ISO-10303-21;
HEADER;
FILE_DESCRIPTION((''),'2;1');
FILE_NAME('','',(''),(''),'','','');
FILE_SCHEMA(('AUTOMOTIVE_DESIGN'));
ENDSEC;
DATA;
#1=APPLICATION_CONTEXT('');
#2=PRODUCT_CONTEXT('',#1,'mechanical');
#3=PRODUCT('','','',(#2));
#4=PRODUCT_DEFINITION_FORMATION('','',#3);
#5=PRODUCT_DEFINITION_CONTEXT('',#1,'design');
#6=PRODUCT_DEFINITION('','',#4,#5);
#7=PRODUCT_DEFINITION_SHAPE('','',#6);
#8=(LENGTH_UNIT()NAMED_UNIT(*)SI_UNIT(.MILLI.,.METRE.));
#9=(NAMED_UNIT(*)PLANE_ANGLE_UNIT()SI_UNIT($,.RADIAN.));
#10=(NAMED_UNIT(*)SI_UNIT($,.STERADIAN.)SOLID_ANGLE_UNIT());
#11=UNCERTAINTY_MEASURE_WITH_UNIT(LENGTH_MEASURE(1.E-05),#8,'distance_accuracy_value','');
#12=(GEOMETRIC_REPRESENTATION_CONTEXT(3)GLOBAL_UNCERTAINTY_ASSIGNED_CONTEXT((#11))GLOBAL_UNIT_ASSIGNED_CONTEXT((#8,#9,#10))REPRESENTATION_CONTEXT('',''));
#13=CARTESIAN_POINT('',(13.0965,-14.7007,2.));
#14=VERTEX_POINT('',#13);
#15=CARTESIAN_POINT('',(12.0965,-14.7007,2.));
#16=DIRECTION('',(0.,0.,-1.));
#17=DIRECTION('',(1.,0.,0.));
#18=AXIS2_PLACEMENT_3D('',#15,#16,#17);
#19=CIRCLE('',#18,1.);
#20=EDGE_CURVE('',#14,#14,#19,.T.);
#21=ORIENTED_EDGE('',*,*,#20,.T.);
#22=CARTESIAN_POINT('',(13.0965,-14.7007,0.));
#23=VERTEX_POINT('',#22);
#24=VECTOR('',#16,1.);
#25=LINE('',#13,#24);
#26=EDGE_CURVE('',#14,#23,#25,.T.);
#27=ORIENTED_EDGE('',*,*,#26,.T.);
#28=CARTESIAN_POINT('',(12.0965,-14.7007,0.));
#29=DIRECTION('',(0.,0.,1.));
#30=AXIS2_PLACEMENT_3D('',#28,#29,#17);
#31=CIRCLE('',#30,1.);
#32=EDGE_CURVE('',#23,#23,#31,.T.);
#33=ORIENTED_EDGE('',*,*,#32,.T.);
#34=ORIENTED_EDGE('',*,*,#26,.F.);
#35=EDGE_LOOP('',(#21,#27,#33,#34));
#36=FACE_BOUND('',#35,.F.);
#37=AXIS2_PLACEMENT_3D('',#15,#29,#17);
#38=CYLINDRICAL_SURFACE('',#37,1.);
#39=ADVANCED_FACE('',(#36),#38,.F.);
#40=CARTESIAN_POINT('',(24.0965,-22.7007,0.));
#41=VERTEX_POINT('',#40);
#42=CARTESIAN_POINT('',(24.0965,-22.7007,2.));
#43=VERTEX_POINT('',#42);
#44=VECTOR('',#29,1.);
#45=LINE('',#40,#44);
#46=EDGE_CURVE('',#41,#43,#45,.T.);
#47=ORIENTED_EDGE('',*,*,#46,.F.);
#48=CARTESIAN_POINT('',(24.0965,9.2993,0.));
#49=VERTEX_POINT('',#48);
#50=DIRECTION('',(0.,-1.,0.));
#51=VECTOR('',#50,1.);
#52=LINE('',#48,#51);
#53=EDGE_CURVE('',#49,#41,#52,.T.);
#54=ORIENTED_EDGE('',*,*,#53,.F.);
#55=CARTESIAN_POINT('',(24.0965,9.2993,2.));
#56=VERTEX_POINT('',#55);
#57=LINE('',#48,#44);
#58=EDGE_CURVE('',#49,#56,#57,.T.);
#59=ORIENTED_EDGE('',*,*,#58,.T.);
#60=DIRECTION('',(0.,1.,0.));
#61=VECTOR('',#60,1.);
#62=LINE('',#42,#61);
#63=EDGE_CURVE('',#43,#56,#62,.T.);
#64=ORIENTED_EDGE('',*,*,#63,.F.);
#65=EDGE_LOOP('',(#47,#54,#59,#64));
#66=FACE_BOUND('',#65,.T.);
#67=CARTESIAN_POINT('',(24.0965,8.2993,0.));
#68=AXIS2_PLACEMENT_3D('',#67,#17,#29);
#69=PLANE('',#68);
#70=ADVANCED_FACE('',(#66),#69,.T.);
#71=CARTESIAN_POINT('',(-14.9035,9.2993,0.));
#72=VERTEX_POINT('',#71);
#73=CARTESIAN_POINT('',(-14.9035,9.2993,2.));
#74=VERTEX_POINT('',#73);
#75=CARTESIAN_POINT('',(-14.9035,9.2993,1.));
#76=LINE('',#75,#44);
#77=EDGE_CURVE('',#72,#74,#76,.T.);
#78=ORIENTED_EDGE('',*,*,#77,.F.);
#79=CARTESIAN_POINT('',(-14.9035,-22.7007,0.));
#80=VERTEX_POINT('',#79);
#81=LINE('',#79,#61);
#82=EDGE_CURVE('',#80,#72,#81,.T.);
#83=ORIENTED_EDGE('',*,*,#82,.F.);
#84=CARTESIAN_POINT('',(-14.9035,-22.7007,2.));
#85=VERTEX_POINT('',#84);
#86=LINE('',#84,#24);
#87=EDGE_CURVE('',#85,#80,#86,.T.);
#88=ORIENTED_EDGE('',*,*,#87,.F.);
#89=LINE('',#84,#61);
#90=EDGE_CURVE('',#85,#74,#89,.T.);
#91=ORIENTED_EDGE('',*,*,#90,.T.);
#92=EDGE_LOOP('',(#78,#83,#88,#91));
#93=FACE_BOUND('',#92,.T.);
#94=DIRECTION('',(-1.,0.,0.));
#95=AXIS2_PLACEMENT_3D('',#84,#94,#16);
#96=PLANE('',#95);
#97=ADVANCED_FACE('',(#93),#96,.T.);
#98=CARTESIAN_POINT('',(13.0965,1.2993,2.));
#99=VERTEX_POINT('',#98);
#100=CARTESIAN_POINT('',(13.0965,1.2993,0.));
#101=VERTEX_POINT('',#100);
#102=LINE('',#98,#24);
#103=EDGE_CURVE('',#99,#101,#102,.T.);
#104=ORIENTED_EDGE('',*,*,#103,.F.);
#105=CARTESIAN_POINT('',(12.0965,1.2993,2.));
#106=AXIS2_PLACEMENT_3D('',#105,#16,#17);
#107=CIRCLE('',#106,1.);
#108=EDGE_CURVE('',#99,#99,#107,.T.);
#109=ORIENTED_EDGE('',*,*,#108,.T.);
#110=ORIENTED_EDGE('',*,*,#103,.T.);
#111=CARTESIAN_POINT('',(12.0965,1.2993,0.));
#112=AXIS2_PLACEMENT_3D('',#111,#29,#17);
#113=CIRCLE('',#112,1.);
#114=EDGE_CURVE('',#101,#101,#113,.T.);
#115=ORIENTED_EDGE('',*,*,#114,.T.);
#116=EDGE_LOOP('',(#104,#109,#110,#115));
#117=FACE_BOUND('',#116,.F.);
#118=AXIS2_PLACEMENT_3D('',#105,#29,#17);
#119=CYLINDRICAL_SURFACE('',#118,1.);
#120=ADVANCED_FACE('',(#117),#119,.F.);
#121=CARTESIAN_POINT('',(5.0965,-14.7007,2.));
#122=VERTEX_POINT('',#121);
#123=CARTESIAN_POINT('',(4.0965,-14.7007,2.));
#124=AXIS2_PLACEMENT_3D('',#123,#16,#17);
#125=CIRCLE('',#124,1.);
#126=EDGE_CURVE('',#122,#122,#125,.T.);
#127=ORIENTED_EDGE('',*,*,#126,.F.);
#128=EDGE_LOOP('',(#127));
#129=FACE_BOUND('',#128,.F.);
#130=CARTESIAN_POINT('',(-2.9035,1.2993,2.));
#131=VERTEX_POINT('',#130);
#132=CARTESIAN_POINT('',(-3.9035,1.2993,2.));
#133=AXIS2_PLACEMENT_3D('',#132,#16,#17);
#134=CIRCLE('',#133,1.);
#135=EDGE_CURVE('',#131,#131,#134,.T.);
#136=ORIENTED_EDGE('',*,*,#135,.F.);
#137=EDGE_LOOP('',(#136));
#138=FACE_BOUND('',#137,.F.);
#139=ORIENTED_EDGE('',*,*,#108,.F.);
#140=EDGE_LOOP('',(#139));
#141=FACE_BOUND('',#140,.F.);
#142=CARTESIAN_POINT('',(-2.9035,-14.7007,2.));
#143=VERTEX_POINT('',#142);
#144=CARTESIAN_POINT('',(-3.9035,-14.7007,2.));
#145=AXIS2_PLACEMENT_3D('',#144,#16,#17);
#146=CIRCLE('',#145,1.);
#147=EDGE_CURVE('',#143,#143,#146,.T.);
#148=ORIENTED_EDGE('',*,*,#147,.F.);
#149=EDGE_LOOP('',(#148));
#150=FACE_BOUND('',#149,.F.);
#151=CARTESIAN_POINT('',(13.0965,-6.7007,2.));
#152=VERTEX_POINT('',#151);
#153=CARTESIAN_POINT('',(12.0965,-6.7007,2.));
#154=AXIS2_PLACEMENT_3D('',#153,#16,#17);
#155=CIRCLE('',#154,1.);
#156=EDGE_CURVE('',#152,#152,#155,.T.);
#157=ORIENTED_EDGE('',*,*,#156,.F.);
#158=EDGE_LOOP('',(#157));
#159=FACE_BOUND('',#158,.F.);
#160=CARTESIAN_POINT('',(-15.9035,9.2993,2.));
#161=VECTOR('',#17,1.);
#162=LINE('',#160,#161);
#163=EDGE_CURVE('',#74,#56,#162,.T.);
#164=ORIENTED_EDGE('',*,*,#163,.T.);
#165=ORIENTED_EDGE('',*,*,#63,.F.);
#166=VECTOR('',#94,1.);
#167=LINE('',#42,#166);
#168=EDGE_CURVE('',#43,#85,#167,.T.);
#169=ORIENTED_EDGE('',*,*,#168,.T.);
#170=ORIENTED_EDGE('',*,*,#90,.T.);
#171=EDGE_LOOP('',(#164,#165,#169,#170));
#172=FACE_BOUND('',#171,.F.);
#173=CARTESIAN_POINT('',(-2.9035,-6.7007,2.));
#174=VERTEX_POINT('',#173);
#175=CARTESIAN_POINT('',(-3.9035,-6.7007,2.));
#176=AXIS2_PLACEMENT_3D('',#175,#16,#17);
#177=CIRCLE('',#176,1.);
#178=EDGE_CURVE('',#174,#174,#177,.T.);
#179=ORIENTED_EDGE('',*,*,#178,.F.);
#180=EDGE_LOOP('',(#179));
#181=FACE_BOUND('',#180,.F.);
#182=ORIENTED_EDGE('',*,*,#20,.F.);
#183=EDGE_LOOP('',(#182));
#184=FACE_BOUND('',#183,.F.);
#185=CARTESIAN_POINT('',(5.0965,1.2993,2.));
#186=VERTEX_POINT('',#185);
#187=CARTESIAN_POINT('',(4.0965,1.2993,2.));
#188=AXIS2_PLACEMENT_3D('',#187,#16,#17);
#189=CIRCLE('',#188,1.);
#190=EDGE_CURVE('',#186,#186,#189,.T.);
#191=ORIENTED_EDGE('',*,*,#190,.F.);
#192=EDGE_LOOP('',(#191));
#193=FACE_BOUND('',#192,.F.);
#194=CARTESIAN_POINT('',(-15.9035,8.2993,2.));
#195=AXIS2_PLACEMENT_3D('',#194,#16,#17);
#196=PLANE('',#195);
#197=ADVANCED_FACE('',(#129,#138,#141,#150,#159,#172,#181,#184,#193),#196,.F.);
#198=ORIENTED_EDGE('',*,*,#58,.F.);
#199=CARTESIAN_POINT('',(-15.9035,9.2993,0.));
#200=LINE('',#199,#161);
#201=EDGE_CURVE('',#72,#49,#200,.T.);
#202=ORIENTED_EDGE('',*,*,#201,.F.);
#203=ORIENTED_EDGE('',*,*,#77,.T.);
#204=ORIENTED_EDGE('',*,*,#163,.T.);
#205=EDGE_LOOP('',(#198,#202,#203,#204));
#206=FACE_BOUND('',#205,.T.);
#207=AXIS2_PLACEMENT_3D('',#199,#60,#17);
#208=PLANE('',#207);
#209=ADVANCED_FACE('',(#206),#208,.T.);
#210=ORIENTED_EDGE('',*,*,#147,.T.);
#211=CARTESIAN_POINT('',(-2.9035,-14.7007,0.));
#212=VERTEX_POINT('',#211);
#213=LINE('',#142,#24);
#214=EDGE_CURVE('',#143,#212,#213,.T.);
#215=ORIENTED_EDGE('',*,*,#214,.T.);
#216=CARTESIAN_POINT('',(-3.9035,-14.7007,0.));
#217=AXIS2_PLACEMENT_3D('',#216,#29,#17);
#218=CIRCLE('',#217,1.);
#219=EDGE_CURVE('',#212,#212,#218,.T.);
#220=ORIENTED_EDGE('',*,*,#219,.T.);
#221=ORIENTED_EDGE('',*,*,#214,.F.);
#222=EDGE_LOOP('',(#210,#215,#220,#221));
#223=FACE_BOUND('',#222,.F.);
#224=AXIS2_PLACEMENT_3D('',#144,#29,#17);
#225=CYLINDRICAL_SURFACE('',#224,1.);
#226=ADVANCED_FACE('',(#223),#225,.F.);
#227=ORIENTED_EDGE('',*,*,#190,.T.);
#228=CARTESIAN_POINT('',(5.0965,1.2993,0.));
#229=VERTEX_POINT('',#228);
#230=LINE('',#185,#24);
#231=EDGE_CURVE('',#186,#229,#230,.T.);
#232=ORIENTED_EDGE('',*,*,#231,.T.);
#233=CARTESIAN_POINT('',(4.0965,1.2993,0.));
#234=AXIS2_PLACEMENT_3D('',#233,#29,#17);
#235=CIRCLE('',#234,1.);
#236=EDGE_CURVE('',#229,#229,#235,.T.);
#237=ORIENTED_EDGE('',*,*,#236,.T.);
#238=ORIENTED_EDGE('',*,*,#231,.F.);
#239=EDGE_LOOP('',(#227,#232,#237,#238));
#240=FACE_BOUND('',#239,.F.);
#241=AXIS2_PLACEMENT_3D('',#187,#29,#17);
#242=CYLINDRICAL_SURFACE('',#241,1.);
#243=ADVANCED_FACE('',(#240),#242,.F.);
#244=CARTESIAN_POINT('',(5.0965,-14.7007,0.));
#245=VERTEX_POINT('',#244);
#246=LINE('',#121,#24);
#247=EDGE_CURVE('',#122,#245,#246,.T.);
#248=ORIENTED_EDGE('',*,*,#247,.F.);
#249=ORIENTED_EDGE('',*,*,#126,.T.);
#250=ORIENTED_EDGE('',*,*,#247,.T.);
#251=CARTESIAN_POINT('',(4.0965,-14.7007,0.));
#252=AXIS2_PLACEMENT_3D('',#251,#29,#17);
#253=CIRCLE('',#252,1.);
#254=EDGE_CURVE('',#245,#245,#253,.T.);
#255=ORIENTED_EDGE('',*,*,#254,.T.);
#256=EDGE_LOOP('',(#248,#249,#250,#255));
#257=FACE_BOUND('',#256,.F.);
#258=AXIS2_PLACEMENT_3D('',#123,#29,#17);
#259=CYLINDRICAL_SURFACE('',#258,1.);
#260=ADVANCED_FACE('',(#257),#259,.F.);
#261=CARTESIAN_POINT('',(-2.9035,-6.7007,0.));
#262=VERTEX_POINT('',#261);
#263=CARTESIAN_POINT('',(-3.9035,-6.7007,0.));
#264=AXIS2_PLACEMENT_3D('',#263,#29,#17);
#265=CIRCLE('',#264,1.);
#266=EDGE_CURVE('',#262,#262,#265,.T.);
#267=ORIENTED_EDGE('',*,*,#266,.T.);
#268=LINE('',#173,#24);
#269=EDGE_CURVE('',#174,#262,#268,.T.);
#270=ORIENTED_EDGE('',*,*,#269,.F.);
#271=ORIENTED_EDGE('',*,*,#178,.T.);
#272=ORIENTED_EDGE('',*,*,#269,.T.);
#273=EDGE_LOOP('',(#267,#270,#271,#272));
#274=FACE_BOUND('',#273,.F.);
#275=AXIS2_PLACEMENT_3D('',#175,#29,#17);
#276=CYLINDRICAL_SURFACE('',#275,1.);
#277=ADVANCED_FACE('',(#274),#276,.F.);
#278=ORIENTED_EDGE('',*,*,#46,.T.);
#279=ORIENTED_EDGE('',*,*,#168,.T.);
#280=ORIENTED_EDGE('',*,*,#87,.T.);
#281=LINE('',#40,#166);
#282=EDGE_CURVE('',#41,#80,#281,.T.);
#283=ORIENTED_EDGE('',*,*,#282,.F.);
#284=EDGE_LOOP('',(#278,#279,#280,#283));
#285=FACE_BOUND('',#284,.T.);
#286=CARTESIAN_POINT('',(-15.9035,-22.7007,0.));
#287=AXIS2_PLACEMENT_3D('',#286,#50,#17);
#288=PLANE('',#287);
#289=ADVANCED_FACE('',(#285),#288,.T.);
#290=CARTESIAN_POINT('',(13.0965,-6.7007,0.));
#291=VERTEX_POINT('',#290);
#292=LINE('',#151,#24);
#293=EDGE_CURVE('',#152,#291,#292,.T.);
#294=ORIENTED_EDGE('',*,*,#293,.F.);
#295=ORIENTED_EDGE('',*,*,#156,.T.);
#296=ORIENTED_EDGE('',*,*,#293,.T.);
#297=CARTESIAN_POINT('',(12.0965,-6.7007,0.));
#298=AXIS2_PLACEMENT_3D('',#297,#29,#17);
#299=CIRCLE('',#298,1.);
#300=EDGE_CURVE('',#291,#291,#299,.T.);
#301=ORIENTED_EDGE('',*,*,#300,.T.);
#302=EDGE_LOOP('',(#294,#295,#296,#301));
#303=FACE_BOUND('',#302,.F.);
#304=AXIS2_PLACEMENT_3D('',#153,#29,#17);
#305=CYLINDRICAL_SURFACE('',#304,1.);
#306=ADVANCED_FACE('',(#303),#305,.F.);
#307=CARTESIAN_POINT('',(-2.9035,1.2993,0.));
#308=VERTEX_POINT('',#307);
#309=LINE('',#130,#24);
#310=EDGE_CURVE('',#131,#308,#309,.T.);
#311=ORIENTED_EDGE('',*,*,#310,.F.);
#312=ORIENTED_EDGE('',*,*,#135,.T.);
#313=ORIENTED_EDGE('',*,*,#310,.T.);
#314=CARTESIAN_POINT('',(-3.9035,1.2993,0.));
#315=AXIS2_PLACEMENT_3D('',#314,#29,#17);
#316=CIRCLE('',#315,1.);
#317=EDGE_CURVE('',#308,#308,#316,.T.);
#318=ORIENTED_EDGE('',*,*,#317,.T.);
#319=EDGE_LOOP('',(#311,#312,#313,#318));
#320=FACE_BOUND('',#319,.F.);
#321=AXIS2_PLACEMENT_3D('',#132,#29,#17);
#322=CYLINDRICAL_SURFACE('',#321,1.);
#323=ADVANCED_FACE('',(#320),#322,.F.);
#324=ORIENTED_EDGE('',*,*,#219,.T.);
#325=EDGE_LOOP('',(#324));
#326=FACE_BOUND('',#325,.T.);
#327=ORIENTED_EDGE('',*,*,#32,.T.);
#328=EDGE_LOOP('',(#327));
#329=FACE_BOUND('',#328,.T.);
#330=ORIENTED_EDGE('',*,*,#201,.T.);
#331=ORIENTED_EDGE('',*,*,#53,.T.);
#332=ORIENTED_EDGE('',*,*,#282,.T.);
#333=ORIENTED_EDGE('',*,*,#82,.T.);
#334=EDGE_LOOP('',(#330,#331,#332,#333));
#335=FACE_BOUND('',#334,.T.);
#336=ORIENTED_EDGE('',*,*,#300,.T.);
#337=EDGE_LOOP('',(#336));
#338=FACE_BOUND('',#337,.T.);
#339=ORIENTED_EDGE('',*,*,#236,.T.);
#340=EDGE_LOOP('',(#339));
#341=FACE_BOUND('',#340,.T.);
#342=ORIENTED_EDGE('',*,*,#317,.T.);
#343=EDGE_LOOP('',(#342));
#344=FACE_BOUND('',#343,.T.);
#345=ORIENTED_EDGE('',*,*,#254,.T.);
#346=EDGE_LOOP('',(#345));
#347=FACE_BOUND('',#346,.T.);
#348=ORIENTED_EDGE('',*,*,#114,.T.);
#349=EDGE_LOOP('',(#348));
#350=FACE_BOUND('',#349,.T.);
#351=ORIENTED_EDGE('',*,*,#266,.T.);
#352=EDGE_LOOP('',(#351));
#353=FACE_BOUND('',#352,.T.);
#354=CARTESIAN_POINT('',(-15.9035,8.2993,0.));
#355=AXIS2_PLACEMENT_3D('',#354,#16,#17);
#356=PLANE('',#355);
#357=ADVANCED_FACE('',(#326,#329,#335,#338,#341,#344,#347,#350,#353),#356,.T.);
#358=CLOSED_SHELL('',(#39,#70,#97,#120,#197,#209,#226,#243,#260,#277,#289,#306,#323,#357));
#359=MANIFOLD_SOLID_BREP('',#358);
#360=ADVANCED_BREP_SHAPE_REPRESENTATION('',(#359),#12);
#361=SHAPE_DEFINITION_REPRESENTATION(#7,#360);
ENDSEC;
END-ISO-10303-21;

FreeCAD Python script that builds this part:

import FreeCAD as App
import Part
import Sketcher

V = App.Vector


def add_polygon(sketch, points):
    """Adds a closed chain of lines whose ends are joined by coincident constraints."""
    first, n = sketch.GeometryCount, len(points)
    for a, b in zip(points, points[1:] + points[:1]):
        sketch.addGeometry(Part.LineSegment(App.Vector(*a, 0), App.Vector(*b, 0)), False)
    for i in range(n):
        sketch.addConstraint(Sketcher.Constraint("Coincident", first + i, 2, first + (i + 1) % n, 1))

doc = App.newDocument("Part")
body = doc.addObject("PartDesign::Body", "Body")

sketch1 = body.newObject("Sketcher::SketchObject", "Sketch")
sketch1.AttachmentSupport = (doc.getObject("XY_Plane"), [""])
sketch1.MapMode = "FlatFace"
add_polygon(sketch1, [(24.0965, 8.2993), (-15.9035, 8.2993), (-15.9035, -21.7007), (24.0965, -21.7007)])
sketch1.addConstraint([
    Sketcher.Constraint("Horizontal", 0),
    Sketcher.Constraint("Vertical", 1),
    Sketcher.Constraint("Horizontal", 2),
    Sketcher.Constraint("Vertical", 3),
    Sketcher.Constraint("DistanceX", 0, 2, 0, 1, 40.0),
    Sketcher.Constraint("DistanceY", 1, 2, 1, 1, 30.0),
    Sketcher.Constraint("DistanceX", 0, 2, -1, 1, 15.9035),
    Sketcher.Constraint("DistanceY", -1, 1, 0, 2, 8.2993),
])
pad1 = body.newObject("PartDesign::Pad", "Pad")
pad1.Profile = sketch1
pad1.Length = 2

sketch2 = body.newObject("Sketcher::SketchObject", "Sketch001")
sketch2.AttachmentSupport = (doc.getObject("XY_Plane"), [""])
sketch2.MapMode = "FlatFace"
sketch2.AttachmentOffset = App.Placement(V(0, 0, 2), App.Rotation())
sketch2.addGeometry([
    Part.Circle(V(12.0965, -14.7007, 0), V(0, 0, 1), 1),
    Part.Circle(V(12.0965, -6.7007, 0), V(0, 0, 1), 1),
    Part.Circle(V(12.0965, 1.2993, 0), V(0, 0, 1), 1),
    Part.Circle(V(4.0965, 1.2993, 0), V(0, 0, 1), 1),
    Part.Circle(V(-3.9035, 1.2993, 0), V(0, 0, 1), 1),
    Part.Circle(V(-3.9035, -6.7007, 0), V(0, 0, 1), 1),
    Part.Circle(V(4.0965, -14.7007, 0), V(0, 0, 1), 1),
    Part.Circle(V(-3.9035, -14.7007, 0), V(0, 0, 1), 1),
], False)
sketch2.addConstraint([
    Sketcher.Constraint("Equal", 0, 1),
    Sketcher.Constraint("Equal", 1, 2),
    Sketcher.Constraint("Equal", 2, 3),
    Sketcher.Constraint("Equal", 3, 4),
    Sketcher.Constraint("Equal", 4, 5),
    Sketcher.Constraint("Equal", 5, 6),
    Sketcher.Constraint("Equal", 6, 7),
    Sketcher.Constraint("Horizontal", 2, 3, 3, 3),
    Sketcher.Constraint("Horizontal", 3, 3, 4, 3),
    Sketcher.Constraint("Horizontal", 1, 3, 5, 3),
    Sketcher.Constraint("Horizontal", 0, 3, 6, 3),
    Sketcher.Constraint("Horizontal", 6, 3, 7, 3),
    Sketcher.Constraint("Vertical", 0, 3, 1, 3),
    Sketcher.Constraint("Vertical", 1, 3, 2, 3),
    Sketcher.Constraint("Vertical", 4, 3, 5, 3),
    Sketcher.Constraint("Vertical", 3, 3, 6, 3),
    Sketcher.Constraint("Vertical", 5, 3, 7, 3),
    Sketcher.Constraint("Diameter", 0, 2.0),
    Sketcher.Constraint("DistanceY", 0, 3, 1, 3, 8.0),
    Sketcher.Constraint("DistanceY", 1, 3, 2, 3, 8.0),
    Sketcher.Constraint("DistanceX", 3, 3, 2, 3, 8.0),
    Sketcher.Constraint("DistanceX", 4, 3, 3, 3, 8.0),
    Sketcher.Constraint("DistanceX", -1, 1, 0, 3, 12.0965),
    Sketcher.Constraint("DistanceY", 0, 3, -1, 1, 14.7007),
])
pocket1 = body.newObject("PartDesign::Pocket", "Pocket")
pocket1.Profile = sketch2
pocket1.Length = 2

sketch3 = body.newObject("Sketcher::SketchObject", "Sketch002")
sketch3.AttachmentSupport = (doc.getObject("XZ_Plane"), [""])
sketch3.MapMode = "FlatFace"
sketch3.AttachmentOffset = App.Placement(V(0, 0, 21.7007), App.Rotation())
add_polygon(sketch3, [(24.0965, 0), (24.0965, 2), (-15.9035, 2), (-15.9035, 0)])
sketch3.addConstraint([
    Sketcher.Constraint("Vertical", 0),
    Sketcher.Constraint("Horizontal", 1),
    Sketcher.Constraint("Vertical", 2),
    Sketcher.Constraint("Horizontal", 3),
    Sketcher.Constraint("PointOnObject", 2, 2, -1),
    Sketcher.Constraint("DistanceX", 1, 2, 1, 1, 40.0),
    Sketcher.Constraint("DistanceY", 0, 1, 0, 2, 2.0),
    Sketcher.Constraint("DistanceX", -1, 1, 0, 2, 24.0965),
])
pad2 = body.newObject("PartDesign::Pad", "Pad001")
pad2.Profile = sketch3
pad2.Length = 1

sketch4 = body.newObject("Sketcher::SketchObject", "Sketch003")
sketch4.AttachmentSupport = (doc.getObject("XZ_Plane"), [""])
sketch4.MapMode = "FlatFace"
sketch4.AttachmentOffset = App.Placement(V(0, 0, -8.2993), App.Rotation())
add_polygon(sketch4, [(-15.9035, 0), (-15.9035, 2), (24.0965, 2), (24.0965, 0)])
sketch4.addConstraint([
    Sketcher.Constraint("Vertical", 0),
    Sketcher.Constraint("Horizontal", 1),
    Sketcher.Constraint("Vertical", 2),
    Sketcher.Constraint("Horizontal", 3),
    Sketcher.Constraint("PointOnObject", 2, 2, -1),
    Sketcher.Constraint("DistanceX", 1, 1, 1, 2, 40.0),
    Sketcher.Constraint("DistanceY", 0, 1, 0, 2, 2.0),
    Sketcher.Constraint("DistanceX", 0, 2, -1, 1, 15.9035),
])
pad3 = body.newObject("PartDesign::Pad", "Pad002")
pad3.Profile = sketch4
pad3.Length = 1
pad3.Reversed = True

sketch5 = body.newObject("Sketcher::SketchObject", "Sketch004")
sketch5.AttachmentSupport = (doc.getObject("XZ_Plane"), [""])
sketch5.MapMode = "FlatFace"
sketch5.AttachmentOffset = App.Placement(V(0, 0, 22.7007), App.Rotation())
add_polygon(sketch5, [(-15.9035, 0), (-14.9035, 0), (-14.9035, 2), (-15.9035, 2)])
sketch5.addConstraint([
    Sketcher.Constraint("Horizontal", 0),
    Sketcher.Constraint("Vertical", 1),
    Sketcher.Constraint("Horizontal", 2),
    Sketcher.Constraint("Vertical", 3),
    Sketcher.Constraint("PointOnObject", 0, 2, -1),
    Sketcher.Constraint("DistanceX", 0, 1, 0, 2, 1.0),
    Sketcher.Constraint("DistanceY", 1, 1, 1, 2, 2.0),
    Sketcher.Constraint("DistanceX", 0, 2, -1, 1, 14.9035),
])
pocket2 = body.newObject("PartDesign::Pocket", "Pocket001")
pocket2.Profile = sketch5
pocket2.Length = 50.8

doc.recompute()
